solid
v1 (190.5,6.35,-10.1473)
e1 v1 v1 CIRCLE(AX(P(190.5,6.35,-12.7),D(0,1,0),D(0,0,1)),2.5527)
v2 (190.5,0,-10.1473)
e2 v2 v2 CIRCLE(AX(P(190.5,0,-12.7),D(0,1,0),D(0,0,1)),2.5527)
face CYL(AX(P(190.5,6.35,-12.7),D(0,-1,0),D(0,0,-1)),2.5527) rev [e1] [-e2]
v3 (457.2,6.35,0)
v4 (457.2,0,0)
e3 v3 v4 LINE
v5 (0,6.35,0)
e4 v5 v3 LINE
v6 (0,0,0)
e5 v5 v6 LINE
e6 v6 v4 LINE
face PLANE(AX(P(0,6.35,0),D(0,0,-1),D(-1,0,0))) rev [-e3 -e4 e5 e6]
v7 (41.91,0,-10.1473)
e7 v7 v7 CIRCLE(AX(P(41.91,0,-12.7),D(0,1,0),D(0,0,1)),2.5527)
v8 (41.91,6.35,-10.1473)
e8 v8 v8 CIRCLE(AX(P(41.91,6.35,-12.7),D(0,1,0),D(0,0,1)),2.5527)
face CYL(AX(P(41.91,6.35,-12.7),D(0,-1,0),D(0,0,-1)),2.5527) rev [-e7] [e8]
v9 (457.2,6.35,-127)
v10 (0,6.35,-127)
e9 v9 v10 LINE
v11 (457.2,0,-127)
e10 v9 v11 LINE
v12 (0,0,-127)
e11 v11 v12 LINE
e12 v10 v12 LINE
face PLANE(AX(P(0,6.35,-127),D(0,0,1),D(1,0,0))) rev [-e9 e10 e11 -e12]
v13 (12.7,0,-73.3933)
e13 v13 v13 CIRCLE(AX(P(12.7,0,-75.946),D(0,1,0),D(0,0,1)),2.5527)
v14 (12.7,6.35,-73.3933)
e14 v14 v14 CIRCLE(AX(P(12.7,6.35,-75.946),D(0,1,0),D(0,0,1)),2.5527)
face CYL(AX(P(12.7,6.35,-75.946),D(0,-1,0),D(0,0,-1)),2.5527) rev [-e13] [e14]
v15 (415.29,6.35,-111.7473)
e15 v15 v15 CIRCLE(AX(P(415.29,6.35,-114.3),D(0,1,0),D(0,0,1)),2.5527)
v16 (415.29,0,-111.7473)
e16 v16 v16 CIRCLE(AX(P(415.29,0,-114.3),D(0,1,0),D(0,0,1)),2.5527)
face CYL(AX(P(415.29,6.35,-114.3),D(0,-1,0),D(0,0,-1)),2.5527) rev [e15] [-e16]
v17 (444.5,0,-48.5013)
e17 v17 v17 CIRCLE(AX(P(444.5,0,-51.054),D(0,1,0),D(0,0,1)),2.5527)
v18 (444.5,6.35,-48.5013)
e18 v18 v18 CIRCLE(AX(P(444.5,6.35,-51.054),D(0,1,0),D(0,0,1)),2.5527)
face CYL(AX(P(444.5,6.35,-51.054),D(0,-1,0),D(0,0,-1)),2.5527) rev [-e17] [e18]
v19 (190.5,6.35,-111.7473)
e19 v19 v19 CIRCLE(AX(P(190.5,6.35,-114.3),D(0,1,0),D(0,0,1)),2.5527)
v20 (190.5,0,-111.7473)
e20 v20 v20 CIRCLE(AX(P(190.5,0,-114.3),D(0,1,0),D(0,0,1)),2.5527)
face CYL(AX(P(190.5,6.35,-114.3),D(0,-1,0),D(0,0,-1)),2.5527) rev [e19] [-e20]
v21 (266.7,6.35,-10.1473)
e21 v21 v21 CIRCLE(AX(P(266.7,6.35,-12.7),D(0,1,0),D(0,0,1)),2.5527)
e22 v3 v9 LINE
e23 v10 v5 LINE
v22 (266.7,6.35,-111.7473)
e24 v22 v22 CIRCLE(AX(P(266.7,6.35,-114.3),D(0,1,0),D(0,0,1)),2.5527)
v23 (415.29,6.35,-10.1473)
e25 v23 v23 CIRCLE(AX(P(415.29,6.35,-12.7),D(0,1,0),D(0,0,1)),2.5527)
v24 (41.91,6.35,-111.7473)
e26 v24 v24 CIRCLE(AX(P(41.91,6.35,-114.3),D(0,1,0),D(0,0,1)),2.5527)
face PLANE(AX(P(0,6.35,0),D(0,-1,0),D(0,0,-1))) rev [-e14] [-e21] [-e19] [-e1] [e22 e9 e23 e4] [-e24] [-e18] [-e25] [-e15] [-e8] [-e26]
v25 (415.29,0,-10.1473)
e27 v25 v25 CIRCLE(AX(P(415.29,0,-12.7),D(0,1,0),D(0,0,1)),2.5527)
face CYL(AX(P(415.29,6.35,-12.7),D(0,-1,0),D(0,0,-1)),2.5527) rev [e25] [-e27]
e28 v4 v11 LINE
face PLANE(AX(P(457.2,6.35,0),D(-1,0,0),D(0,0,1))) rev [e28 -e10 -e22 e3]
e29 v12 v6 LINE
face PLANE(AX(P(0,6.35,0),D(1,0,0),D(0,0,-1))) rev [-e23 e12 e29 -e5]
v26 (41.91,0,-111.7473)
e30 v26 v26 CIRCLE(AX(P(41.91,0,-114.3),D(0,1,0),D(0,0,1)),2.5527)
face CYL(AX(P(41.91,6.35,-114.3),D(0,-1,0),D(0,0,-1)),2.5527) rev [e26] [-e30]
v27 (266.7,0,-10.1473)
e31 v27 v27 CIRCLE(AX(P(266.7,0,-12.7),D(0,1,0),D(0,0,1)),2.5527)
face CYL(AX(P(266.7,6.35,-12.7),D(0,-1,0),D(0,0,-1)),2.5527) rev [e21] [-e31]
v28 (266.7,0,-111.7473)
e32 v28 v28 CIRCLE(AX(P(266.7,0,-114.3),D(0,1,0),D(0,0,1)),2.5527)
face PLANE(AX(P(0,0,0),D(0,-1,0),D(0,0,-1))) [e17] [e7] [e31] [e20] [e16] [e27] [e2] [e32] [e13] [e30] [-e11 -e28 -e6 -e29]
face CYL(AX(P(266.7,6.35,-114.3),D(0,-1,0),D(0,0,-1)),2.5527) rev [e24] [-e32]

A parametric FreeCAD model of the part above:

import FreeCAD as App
import Part
import Sketcher
Q = App.Units.Quantity

doc = App.newDocument("Part")
params = doc.addObject("Spreadsheet::Sheet", "Params")
for row, (alias, value) in enumerate([
    ("sketch1_width", "18 in"),
    ("sketch1_height", "5 in"),
    ("sketch1_diameter", "0.201 in"),
    ("pad1_length", "0.25 in"),
], start=1):
    params.set(f"A{row}", alias)
    params.set(f"B{row}", "=" + value)
    params.setAlias(f"B{row}", alias)

body = doc.addObject("PartDesign::Body", "Body")

# Sketch on XZ plane
sketch1 = body.newObject("Sketcher::SketchObject", "Sketch")
sketch1.AttachmentSupport = (doc.getObject("XZ_Plane"), [""])
sketch1.MapMode = "FlatFace"
sketch1.addGeometry([
    Part.LineSegment(App.Vector(0, -127, 0), App.Vector(0, 0, 0)),  # 0
    Part.LineSegment(App.Vector(0, 0, 0), App.Vector(457.2, 0, 0)),  # 1
    Part.LineSegment(App.Vector(457.2, 0, 0), App.Vector(457.2, -127, 0)),  # 2
    Part.LineSegment(App.Vector(457.2, -127, 0), App.Vector(0, -127, 0)),  # 3
    Part.Circle(App.Vector(41.91, -12.7, 0), App.Vector(0, 0, 1), 2.5527),  # 4
    Part.Circle(App.Vector(190.5, -12.7, 0), App.Vector(0, 0, 1), 2.5527),  # 5
    Part.Circle(App.Vector(266.7, -12.7, 0), App.Vector(0, 0, 1), 2.5527),  # 6
    Part.Circle(App.Vector(415.29, -12.7, 0), App.Vector(0, 0, 1), 2.5527),  # 7
    Part.Circle(App.Vector(444.5, -51.054, 0), App.Vector(0, 0, 1), 2.5527),  # 8
    Part.Circle(App.Vector(12.7, -75.946, 0), App.Vector(0, 0, 1), 2.5527),  # 9
    Part.Circle(App.Vector(41.91, -114.3, 0), App.Vector(0, 0, 1), 2.5527),  # 10
    Part.Circle(App.Vector(190.5, -114.3, 0), App.Vector(0, 0, 1), 2.5527),  # 11
    Part.Circle(App.Vector(266.7, -114.3, 0), App.Vector(0, 0, 1), 2.5527),  # 12
    Part.Circle(App.Vector(415.29, -114.3, 0), App.Vector(0, 0, 1), 2.5527),  # 13
], False)
sketch1.addConstraint([
    Sketcher.Constraint("Coincident", 0, 2, 1, 1),
    Sketcher.Constraint("Coincident", 1, 2, 2, 1),
    Sketcher.Constraint("Coincident", 2, 2, 3, 1),
    Sketcher.Constraint("Coincident", 3, 2, 0, 1),
    Sketcher.Constraint("Vertical", 0),
    Sketcher.Constraint("Horizontal", 1),
    Sketcher.Constraint("Vertical", 2),
    Sketcher.Constraint("Horizontal", 3),
    Sketcher.Constraint("Coincident", 0, 2, -1, 1),
    Sketcher.Constraint("Equal", 4, 5),
    Sketcher.Constraint("Equal", 5, 6),
    Sketcher.Constraint("Equal", 6, 7),
    Sketcher.Constraint("Equal", 7, 8),
    Sketcher.Constraint("Equal", 8, 9),
    Sketcher.Constraint("Equal", 9, 10),
    Sketcher.Constraint("Equal", 10, 11),
    Sketcher.Constraint("Equal", 11, 12),
    Sketcher.Constraint("Equal", 12, 13),
    Sketcher.Constraint("Horizontal", 4, 3, 5, 3),
    Sketcher.Constraint("Horizontal", 5, 3, 6, 3),
    Sketcher.Constraint("Horizontal", 6, 3, 7, 3),
    Sketcher.Constraint("Horizontal", 10, 3, 11, 3),
    Sketcher.Constraint("Horizontal", 11, 3, 12, 3),
    Sketcher.Constraint("Horizontal", 12, 3, 13, 3),
    Sketcher.Constraint("Vertical", 4, 3, 10, 3),
    Sketcher.Constraint("Vertical", 5, 3, 11, 3),
    Sketcher.Constraint("Vertical", 6, 3, 12, 3),
    Sketcher.Constraint("Vertical", 7, 3, 13, 3),
    Sketcher.Constraint("DistanceX", 1, 1, 1, 2, Q("18 in")),
    Sketcher.Constraint("DistanceY", 0, 1, 0, 2, Q("5 in")),
    Sketcher.Constraint("Diameter", 4, Q("0.201 in")),
    Sketcher.Constraint("DistanceX", 5, 3, 6, 3, Q("3 in")),
    Sketcher.Constraint("DistanceX", 6, 3, 8, 3, Q("7 in")),
    Sketcher.Constraint("DistanceX", 9, 3, 5, 3, Q("7 in")),
    Sketcher.Constraint("DistanceY", 10, 3, 4, 3, Q("4 in")),
    Sketcher.Constraint("DistanceY", 4, 3, -1, 1, Q("0.5 in")),
    Sketcher.Constraint("DistanceX", -1, 1, 5, 3, Q("7.5 in")),
    Sketcher.Constraint("DistanceX", 4, 3, 7, 3, Q("14.7 in")),
    Sketcher.Constraint("DistanceX", -1, 1, 4, 3, Q("1.65 in")),
    Sketcher.Constraint("DistanceY", 8, 3, -1, 1, Q("2.01 in")),
    Sketcher.Constraint("DistanceY", 9, 3, -1, 1, Q("2.99 in")),
])
sketch1.setExpression("Constraints[28]", "Params.sketch1_width")
sketch1.setExpression("Constraints[29]", "Params.sketch1_height")
sketch1.setExpression("Constraints[30]", "Params.sketch1_diameter")
pad1 = body.newObject("PartDesign::Pad", "Pad")
pad1.Profile = sketch1
pad1.setExpression("Length", "Params.pad1_length")
pad1.Reversed = True

doc.recompute()
